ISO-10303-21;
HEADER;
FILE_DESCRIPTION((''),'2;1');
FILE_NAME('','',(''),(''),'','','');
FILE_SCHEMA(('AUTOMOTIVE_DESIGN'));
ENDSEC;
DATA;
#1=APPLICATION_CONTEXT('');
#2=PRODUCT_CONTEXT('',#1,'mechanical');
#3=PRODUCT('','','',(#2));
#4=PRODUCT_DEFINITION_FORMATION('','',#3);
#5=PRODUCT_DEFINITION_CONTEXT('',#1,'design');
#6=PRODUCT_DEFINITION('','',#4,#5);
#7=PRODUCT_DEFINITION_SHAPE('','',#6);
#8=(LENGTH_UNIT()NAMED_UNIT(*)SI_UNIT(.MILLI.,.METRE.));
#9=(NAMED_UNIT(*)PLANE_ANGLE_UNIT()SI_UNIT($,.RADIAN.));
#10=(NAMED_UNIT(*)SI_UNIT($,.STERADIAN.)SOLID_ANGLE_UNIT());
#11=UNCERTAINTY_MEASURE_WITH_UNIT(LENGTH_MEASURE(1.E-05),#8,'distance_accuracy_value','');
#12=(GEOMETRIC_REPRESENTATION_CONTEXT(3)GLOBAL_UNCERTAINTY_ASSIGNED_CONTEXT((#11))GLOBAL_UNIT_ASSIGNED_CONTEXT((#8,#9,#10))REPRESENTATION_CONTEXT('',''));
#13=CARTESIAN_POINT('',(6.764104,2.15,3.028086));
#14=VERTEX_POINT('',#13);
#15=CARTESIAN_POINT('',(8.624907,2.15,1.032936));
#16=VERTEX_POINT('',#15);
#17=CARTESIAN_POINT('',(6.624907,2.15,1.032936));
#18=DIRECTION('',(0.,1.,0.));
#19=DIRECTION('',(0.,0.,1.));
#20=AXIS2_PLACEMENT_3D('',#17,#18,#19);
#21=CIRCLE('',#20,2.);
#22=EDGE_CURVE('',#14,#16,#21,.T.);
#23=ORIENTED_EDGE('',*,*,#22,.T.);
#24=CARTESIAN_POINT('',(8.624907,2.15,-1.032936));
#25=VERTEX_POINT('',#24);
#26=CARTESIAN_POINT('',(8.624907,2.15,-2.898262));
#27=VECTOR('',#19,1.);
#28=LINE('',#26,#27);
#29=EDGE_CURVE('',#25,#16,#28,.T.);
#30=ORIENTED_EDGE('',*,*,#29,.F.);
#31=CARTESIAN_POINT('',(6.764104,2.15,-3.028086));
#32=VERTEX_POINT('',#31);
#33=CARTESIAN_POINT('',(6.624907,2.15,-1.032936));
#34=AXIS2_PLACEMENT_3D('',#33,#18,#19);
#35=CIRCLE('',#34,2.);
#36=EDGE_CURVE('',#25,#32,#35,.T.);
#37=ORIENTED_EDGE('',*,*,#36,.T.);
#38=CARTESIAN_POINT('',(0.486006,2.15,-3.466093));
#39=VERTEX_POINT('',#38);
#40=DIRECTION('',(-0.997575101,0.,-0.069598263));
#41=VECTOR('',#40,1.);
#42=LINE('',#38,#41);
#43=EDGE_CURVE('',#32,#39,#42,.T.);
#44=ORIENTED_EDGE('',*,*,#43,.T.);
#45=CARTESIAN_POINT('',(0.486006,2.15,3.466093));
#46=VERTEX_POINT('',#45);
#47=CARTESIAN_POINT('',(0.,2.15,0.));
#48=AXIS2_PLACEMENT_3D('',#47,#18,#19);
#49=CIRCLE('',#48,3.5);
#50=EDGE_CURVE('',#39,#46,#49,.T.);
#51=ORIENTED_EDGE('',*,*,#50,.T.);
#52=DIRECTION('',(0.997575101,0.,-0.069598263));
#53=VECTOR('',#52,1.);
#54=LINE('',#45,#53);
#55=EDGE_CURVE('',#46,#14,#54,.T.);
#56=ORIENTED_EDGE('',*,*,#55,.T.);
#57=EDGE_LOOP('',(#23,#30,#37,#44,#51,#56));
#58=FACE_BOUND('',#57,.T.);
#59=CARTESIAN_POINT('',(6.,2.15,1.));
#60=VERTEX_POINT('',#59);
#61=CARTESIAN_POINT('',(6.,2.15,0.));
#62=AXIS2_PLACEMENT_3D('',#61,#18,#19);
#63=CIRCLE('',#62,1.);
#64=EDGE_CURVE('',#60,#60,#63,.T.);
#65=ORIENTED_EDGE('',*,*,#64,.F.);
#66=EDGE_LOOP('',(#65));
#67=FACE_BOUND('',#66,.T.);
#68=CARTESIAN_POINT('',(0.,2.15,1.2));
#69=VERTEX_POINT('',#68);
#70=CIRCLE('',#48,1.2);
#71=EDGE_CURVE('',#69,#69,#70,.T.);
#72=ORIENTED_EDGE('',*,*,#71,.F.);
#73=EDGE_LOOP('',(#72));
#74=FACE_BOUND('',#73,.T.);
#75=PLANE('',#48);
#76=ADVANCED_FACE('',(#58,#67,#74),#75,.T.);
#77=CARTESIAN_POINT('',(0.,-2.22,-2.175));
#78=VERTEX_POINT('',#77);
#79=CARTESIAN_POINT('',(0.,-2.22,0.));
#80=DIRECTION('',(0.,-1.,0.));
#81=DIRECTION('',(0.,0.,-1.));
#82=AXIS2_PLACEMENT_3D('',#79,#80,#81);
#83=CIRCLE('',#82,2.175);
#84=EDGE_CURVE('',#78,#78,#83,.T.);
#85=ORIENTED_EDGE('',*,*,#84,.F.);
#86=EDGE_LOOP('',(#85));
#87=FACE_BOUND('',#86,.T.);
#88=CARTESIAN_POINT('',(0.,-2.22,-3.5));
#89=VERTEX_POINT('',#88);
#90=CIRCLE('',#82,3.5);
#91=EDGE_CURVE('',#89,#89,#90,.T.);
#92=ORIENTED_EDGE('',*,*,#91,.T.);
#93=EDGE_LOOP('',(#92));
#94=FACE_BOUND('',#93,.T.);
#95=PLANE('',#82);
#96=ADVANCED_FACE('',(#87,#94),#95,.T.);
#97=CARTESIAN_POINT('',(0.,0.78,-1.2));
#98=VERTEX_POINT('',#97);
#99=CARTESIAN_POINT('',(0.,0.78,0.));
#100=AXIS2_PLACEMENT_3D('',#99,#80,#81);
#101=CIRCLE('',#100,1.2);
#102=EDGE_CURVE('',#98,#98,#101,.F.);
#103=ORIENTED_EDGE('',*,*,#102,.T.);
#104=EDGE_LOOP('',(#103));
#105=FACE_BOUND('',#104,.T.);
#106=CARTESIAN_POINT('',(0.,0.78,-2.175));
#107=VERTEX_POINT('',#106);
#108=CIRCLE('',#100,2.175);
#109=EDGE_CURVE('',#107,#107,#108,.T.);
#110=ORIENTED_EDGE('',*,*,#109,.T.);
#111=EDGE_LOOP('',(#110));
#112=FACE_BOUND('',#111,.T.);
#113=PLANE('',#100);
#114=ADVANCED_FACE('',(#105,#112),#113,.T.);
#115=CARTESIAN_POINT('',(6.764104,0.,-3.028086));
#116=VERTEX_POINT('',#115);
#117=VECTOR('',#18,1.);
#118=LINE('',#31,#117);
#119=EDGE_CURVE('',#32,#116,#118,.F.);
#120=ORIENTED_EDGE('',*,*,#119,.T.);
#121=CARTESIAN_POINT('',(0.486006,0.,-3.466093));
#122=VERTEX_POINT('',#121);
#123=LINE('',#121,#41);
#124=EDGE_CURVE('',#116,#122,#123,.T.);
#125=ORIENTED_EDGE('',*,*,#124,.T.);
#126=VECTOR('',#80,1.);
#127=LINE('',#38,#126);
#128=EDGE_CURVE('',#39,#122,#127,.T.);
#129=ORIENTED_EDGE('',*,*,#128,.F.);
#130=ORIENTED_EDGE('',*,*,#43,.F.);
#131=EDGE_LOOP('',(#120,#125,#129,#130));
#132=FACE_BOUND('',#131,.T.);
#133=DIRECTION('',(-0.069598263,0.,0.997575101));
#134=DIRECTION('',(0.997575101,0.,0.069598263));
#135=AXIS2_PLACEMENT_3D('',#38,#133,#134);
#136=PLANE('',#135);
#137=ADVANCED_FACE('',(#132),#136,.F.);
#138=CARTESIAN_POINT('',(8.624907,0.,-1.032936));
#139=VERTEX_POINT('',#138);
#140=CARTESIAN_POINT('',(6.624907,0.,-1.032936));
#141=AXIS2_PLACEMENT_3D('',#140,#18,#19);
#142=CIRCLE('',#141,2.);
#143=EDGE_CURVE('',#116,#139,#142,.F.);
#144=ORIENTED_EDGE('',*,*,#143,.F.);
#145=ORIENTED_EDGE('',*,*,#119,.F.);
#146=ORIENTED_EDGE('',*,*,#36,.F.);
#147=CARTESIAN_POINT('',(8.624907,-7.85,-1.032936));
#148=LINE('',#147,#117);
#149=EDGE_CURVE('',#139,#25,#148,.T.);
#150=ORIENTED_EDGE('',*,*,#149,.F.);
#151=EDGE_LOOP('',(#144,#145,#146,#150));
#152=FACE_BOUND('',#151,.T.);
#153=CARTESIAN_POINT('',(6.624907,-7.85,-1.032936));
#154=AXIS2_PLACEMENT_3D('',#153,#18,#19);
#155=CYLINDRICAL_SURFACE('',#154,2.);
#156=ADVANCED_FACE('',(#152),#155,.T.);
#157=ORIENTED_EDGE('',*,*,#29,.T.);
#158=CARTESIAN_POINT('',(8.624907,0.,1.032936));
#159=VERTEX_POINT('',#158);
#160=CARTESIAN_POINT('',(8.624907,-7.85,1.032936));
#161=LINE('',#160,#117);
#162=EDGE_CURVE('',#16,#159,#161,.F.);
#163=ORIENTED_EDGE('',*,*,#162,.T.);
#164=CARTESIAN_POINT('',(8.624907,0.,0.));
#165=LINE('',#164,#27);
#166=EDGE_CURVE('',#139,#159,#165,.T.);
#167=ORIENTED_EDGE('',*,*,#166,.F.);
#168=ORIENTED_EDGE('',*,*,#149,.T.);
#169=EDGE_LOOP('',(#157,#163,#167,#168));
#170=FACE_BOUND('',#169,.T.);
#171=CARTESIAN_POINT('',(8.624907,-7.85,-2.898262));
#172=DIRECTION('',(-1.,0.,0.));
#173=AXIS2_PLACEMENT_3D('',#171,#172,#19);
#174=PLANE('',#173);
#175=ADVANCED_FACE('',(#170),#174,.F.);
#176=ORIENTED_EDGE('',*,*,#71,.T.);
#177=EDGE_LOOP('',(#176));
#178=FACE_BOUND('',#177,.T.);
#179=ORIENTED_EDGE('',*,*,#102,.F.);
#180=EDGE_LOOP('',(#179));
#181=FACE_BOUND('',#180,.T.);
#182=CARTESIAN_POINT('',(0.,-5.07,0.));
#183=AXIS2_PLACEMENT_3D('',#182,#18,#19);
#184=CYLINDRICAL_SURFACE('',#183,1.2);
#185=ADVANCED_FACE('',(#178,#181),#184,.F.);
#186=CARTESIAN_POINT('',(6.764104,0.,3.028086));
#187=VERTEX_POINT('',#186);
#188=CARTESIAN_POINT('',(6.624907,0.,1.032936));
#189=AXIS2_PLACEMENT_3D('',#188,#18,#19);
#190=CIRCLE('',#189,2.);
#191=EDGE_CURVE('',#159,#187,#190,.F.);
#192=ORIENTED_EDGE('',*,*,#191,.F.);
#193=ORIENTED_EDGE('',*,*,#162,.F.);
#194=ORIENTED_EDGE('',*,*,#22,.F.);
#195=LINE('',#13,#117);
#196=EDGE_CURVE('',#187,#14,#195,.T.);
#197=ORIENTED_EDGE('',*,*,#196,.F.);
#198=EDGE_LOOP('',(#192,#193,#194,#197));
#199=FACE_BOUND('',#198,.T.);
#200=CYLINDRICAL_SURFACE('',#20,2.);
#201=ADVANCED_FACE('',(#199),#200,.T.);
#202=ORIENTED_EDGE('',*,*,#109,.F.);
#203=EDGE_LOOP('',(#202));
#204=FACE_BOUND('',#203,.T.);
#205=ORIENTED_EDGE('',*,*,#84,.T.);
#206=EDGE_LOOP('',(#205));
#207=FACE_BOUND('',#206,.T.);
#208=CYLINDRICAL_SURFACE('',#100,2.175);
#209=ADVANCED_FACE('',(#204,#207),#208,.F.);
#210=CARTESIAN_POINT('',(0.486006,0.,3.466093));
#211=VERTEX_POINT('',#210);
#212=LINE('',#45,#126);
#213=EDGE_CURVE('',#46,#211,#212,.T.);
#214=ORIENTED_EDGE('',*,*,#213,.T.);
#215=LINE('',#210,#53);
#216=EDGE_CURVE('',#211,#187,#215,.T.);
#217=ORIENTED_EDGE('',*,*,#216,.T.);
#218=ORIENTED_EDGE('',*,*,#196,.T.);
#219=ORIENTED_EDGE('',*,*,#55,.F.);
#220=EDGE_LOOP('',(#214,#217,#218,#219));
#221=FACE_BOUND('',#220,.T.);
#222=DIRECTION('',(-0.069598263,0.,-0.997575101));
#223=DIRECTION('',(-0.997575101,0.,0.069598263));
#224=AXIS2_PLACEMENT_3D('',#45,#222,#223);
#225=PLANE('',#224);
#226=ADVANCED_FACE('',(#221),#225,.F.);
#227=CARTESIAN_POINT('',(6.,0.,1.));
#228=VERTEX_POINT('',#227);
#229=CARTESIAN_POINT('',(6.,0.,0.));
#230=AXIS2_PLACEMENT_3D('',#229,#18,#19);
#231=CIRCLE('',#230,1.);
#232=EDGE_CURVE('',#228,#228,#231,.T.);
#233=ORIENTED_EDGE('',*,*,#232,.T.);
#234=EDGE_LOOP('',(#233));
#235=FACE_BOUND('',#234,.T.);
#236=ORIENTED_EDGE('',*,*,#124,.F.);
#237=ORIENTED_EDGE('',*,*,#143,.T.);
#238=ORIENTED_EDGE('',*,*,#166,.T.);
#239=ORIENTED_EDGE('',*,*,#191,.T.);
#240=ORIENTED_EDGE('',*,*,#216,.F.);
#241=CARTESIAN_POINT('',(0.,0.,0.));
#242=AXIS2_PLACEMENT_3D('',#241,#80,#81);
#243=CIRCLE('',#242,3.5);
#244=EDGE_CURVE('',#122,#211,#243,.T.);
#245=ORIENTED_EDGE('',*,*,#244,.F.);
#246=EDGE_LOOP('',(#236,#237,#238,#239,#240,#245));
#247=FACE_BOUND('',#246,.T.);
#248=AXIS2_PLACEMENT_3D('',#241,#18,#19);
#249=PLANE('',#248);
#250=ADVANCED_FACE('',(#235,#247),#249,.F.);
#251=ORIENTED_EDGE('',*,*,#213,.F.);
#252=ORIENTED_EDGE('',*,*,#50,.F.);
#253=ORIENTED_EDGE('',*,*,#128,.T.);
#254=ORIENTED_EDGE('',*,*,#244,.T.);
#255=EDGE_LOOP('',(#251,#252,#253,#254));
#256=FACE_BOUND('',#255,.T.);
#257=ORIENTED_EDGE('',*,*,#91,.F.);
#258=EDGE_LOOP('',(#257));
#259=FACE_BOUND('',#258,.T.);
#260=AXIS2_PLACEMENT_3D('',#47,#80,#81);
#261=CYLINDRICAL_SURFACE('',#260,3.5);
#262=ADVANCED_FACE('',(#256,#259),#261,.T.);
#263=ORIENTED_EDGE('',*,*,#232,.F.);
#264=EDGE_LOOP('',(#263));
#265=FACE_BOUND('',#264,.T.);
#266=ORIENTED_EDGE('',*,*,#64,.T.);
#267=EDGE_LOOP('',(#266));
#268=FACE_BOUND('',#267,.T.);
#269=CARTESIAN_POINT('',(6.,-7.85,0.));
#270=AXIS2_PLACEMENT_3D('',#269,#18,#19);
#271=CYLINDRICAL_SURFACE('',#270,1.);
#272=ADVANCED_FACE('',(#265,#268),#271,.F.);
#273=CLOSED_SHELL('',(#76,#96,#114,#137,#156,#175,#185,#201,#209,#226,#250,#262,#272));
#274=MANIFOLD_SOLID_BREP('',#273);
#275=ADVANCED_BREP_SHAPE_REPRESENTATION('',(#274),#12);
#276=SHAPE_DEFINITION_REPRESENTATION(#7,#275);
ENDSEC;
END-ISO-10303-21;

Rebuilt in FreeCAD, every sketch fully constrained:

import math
import FreeCAD as App
import Part
import Sketcher


def edges_at(feature, points):
    """Names of the edges that pass closest to the given points."""
    edges = feature.Shape.Edges
    near = lambda p: min(range(len(edges)), key=lambda i: edges[i].distToShape(Part.Vertex(*p))[0])
    return sorted({f"Edge{near(p) + 1}" for p in points})

doc = App.newDocument("Part")
body = doc.addObject("PartDesign::Body", "Body")

# Sketch on XZ plane
sketch1 = doc.addObject("Sketcher::SketchObject", "Sketch")
body.addObject(sketch1)
sketch1.AttachmentSupport = (doc.XZ_Plane, [""])
sketch1.MapMode = "FlatFace"
sketch1.addGeometry([
    Part.LineSegment(App.Vector(21.5, -2, 0), App.Vector(0.5, -3.5, 0)),
    Part.ArcOfCircle(Part.Circle(App.Vector(0, 0, 0), App.Vector(0, 0, 1), 3.5), math.radians(82), math.radians(278)),
    Part.LineSegment(App.Vector(0.5, 3.5, 0), App.Vector(21.5, 2, 0)),
    Part.ArcOfCircle(Part.Circle(App.Vector(21.5, 0, 0), App.Vector(0, 0, 1), 2), math.radians(-90), math.radians(90)),
], False)
sketch1.addConstraint([
    Sketcher.Constraint("Coincident", 0, 2, 1, 2),
    Sketcher.Constraint("Coincident", 1, 1, 2, 1),
    Sketcher.Constraint("Coincident", 2, 2, 3, 2),
    Sketcher.Constraint("Coincident", 3, 1, 0, 1),
    Sketcher.Constraint("Coincident", 1, 3, -1, 1),
    Sketcher.Constraint("Symmetric", 2, 2, 3, 1, -1),
    Sketcher.Constraint("Vertical", 0, 2, 1, 1),
    Sketcher.Constraint("Vertical", 3, 3, 2, 2),
    Sketcher.Constraint("Radius", 3, 2.0),
    Sketcher.Constraint("Radius", 1, 3.5),
    Sketcher.Constraint("DistanceX", -1, 1, 3, 3, 21.5),
    Sketcher.Constraint("Distance", 0, 21.065074),
])
pad1 = doc.addObject("PartDesign::Pad", "Pad")
body.addObject(pad1)
pad1.Profile = sketch1
pad1.Length = 2.15
pad1.Reversed = True

# Sketch on XZ plane
sketch2 = doc.addObject("Sketcher::SketchObject", "Sketch001")
body.addObject(sketch2)
sketch2.AttachmentSupport = (doc.XZ_Plane, [""])
sketch2.MapMode = "FlatFace"
sketch2.addGeometry(Part.Circle(App.Vector(0, 0, 0), App.Vector(0, 0, 1), 3.5), False)
sketch2.addConstraint([
    Sketcher.Constraint("Coincident", 0, 3, -1, 1),
    Sketcher.Constraint("Diameter", 0, 7.0),
])
pad2 = doc.addObject("PartDesign::Pad", "Pad001")
body.addObject(pad2)
pad2.Profile = sketch2
pad2.Length = 2.22

# Sketch on XZ plane
sketch3 = doc.addObject("Sketcher::SketchObject", "Sketch002")
body.addObject(sketch3)
sketch3.AttachmentSupport = (doc.XZ_Plane, [""])
sketch3.MapMode = "FlatFace"
sketch3.AttachmentOffset = App.Placement(App.Vector(0, 0, -2.15), App.Rotation())
sketch3.addGeometry(Part.Circle(App.Vector(0, 0, 0), App.Vector(0, 0, 1), 1.2), False)
sketch3.addConstraint([
    Sketcher.Constraint("Coincident", 0, 3, -1, 1),
    Sketcher.Constraint("Diameter", 0, 2.4),
])
pocket1 = doc.addObject("PartDesign::Pocket", "Pocket")
body.addObject(pocket1)
pocket1.Profile = sketch3
pocket1.Length = 7.22
pocket1.Reversed = True

# Sketch on XZ plane
sketch4 = doc.addObject("Sketcher::SketchObject", "Sketch003")
body.addObject(sketch4)
sketch4.AttachmentSupport = (doc.XZ_Plane, [""])
sketch4.MapMode = "FlatFace"
sketch4.AttachmentOffset = App.Placement(App.Vector(0, 0, 2.22), App.Rotation())
sketch4.addGeometry(Part.Circle(App.Vector(0, 0, 0), App.Vector(0, 0, 1), 2.2), False)
sketch4.addConstraint([
    Sketcher.Constraint("Coincident", 0, 3, -1, 1),
    Sketcher.Constraint("Diameter", 0, 4.35),
])
pocket2 = doc.addObject("PartDesign::Pocket", "Pocket001")
body.addObject(pocket2)
pocket2.Profile = sketch4
pocket2.Length = 3

# Sketch on XZ plane
sketch5 = doc.addObject("Sketcher::SketchObject", "Sketch004")
body.addObject(sketch5)
sketch5.AttachmentSupport = (doc.XZ_Plane, [""])
sketch5.MapMode = "FlatFace"
sketch5.AttachmentOffset = App.Placement(App.Vector(0, 0, -2.15), App.Rotation())
sketch5.addGeometry([
    Part.Circle(App.Vector(21.5, 0, 0), App.Vector(0, 0, 1), 1),
    Part.Circle(App.Vector(15.5, 0, 0), App.Vector(0, 0, 1), 1),
    Part.Circle(App.Vector(6, 0, 0), App.Vector(0, 0, 1), 1),
], False)
sketch5.addConstraint([
    Sketcher.Constraint("Equal", 0, 1),
    Sketcher.Constraint("Equal", 1, 2),
    Sketcher.Constraint("PointOnObject", 0, 3, -1),
    Sketcher.Constraint("PointOnObject", 1, 3, -1),
    Sketcher.Constraint("PointOnObject", 2, 3, -1),
    Sketcher.Constraint("Diameter", 0, 2.0),
    Sketcher.Constraint("DistanceX", -1, 1, 2, 3, 6.0),
    Sketcher.Constraint("DistanceX", 1, 3, 0, 3, 6.0),
    Sketcher.Constraint("DistanceX", -1, 1, 0, 3, 21.5),
])
pocket3 = doc.addObject("PartDesign::Pocket", "Pocket002")
body.addObject(pocket3)
pocket3.Profile = sketch5
pocket3.Length = 10
pocket3.Reversed = True

# Sketch on XZ plane
sketch6 = doc.addObject("Sketcher::SketchObject", "Sketch005")
body.addObject(sketch6)
sketch6.AttachmentSupport = (doc.XZ_Plane, [""])
sketch6.MapMode = "FlatFace"
sketch6.AttachmentOffset = App.Placement(App.Vector(0, 0, -2.15), App.Rotation())
sketch6.addGeometry([
    Part.LineSegment(App.Vector(21.5, -2, 0), App.Vector(8.6, -2.9, 0)),
    Part.LineSegment(App.Vector(8.6, -2.9, 0), App.Vector(8.6, 2.9, 0)),
    Part.LineSegment(App.Vector(8.6, 2.9, 0), App.Vector(21.5, 2, 0)),
    Part.ArcOfCircle(Part.Circle(App.Vector(21.5, 0, 0), App.Vector(0, 0, 1), 2), math.radians(-90), math.radians(90)),
], False)
sketch6.addConstraint([
    Sketcher.Constraint("Coincident", 0, 2, 1, 1),
    Sketcher.Constraint("Coincident", 1, 2, 2, 1),
    Sketcher.Constraint("Coincident", 2, 2, 3, 2),
    Sketcher.Constraint("Coincident", 3, 1, 0, 1),
    Sketcher.Constraint("Vertical", 1),
    Sketcher.Constraint("Symmetric", 2, 2, 3, 1, -1),
    Sketcher.Constraint("Vertical", 3, 3, 2, 2),
    Sketcher.Constraint("Equal", 0, 2),
    Sketcher.Constraint("Radius", 3, 2.0),
    Sketcher.Constraint("DistanceX", -1, 1, 3, 3, 21.5),
    Sketcher.Constraint("Distance", 0, 12.906389),
    Sketcher.Constraint("DistanceY", 1, 1, 1, 2, 5.796525),
])
pocket4 = doc.addObject("PartDesign::Pocket", "Pocket003")
body.addObject(pocket4)
pocket4.Profile = sketch6
pocket4.Length = 10
pocket4.Reversed = True
doc.recompute()

fillet = doc.addObject("PartDesign::Fillet", "Fillet")
body.addObject(fillet)
fillet.Base = (pocket4, edges_at(pocket4, [(8.625, 1.075, 2.898), (8.625, 1.075, -2.898)]))
fillet.Radius = 2

doc.recompute()
